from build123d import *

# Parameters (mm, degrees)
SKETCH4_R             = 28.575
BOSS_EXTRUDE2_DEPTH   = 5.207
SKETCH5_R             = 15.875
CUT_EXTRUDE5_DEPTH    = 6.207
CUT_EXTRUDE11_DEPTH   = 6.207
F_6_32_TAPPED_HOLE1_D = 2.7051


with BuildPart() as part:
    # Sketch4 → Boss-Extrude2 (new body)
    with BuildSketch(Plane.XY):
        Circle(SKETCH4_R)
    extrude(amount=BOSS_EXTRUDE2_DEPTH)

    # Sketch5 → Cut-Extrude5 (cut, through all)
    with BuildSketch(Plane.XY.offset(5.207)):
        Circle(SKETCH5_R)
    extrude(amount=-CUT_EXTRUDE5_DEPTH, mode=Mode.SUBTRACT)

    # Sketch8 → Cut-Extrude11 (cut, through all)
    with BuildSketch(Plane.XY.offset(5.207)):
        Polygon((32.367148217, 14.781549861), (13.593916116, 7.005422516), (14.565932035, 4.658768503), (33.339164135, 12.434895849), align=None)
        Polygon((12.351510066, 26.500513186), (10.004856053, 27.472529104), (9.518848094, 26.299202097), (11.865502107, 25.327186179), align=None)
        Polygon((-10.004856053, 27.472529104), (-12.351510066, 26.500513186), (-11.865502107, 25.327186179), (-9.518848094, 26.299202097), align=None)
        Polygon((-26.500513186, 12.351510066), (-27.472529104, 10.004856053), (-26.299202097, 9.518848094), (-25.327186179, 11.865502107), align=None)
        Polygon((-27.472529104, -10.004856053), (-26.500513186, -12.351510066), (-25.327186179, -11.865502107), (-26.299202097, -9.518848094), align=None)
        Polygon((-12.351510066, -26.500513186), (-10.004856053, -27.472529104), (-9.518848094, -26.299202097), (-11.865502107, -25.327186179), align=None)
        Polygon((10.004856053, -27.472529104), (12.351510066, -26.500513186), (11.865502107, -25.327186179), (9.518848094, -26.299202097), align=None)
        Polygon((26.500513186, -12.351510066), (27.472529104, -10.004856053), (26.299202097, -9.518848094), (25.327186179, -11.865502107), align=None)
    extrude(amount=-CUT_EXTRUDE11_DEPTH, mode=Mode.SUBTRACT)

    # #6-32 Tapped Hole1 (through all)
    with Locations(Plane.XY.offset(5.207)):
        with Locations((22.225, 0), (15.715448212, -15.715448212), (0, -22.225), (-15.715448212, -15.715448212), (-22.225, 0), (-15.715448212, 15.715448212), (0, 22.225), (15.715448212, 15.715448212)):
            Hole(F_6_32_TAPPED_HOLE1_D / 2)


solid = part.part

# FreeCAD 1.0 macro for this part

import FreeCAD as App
import Part
import Sketcher
from FreeCAD import Vector
Q = App.Units.Quantity

doc = App.newDocument("Part")
body = doc.addObject("PartDesign::Body", "Body")

sketch1 = body.newObject("Sketcher::SketchObject", "Sketch")
sketch1.AttachmentSupport = (doc.getObject("XY_Plane"), [""])
sketch1.MapMode = "FlatFace"
sketch1.addGeometry(Part.Circle(Vector(0, 0, 0), Vector(0, 0, 1), 28.575), False)
sketch1.addConstraint(Sketcher.Constraint("Coincident", 0, 3, -1, 1))
sketch1.addConstraint(Sketcher.Constraint("Diameter", 0, Q("2.25 in")))
pad1 = body.newObject("PartDesign::Pad", "Pad")
pad1.Profile = sketch1
pad1.Length = Q("0.205 in")

sketch2 = body.newObject("Sketcher::SketchObject", "Sketch001")
sketch2.AttachmentSupport = (doc.getObject("XY_Plane"), [""])
sketch2.MapMode = "FlatFace"
sketch2.AttachmentOffset = App.Placement(Vector(0, 0, 0.205 * 25.4), App.Rotation())
sketch2.addGeometry(Part.Circle(Vector(0, 0, 0), Vector(0, 0, 1), 15.875), False)
sketch2.addConstraint(Sketcher.Constraint("Coincident", 0, 3, -1, 1))
sketch2.addConstraint(Sketcher.Constraint("Diameter", 0, Q("1.25 in")))
pocket1 = body.newObject("PartDesign::Pocket", "Pocket")
pocket1.Profile = sketch2
pocket1.Type = "ThroughAll"

sketch3 = body.newObject("Sketcher::SketchObject", "Sketch002")
sketch3.AttachmentSupport = (doc.getObject("XY_Plane"), [""])
sketch3.MapMode = "FlatFace"
sketch3.AttachmentOffset = App.Placement(Vector(0, 0, 0.205 * 25.4), App.Rotation())
sketch3.addGeometry(Part.LineSegment(Vector(32.367148, 14.78155, 0), Vector(13.593916, 7.005423, 0)), False)
sketch3.addGeometry(Part.LineSegment(Vector(13.593916, 7.005423, 0), Vector(14.565932, 4.658769, 0)), False)
sketch3.addGeometry(Part.LineSegment(Vector(14.565932, 4.658769, 0), Vector(33.339164, 12.434896, 0)), False)
sketch3.addGeometry(Part.LineSegment(Vector(33.339164, 12.434896, 0), Vector(32.367148, 14.78155, 0)), False)
sketch3.addGeometry(Part.LineSegment(Vector(12.35151, 26.500513, 0), Vector(10.004856, 27.472529, 0)), False)
sketch3.addGeometry(Part.LineSegment(Vector(10.004856, 27.472529, 0), Vector(9.518848, 26.299202, 0)), False)
sketch3.addGeometry(Part.LineSegment(Vector(9.518848, 26.299202, 0), Vector(11.865502, 25.327186, 0)), False)
sketch3.addGeometry(Part.LineSegment(Vector(11.865502, 25.327186, 0), Vector(12.35151, 26.500513, 0)), False)
sketch3.addGeometry(Part.LineSegment(Vector(-10.004856, 27.472529, 0), Vector(-12.35151, 26.500513, 0)), False)
sketch3.addGeometry(Part.LineSegment(Vector(-12.35151, 26.500513, 0), Vector(-11.865502, 25.327186, 0)), False)
sketch3.addGeometry(Part.LineSegment(Vector(-11.865502, 25.327186, 0), Vector(-9.518848, 26.299202, 0)), False)
sketch3.addGeometry(Part.LineSegment(Vector(-9.518848, 26.299202, 0), Vector(-10.004856, 27.472529, 0)), False)
sketch3.addGeometry(Part.LineSegment(Vector(-26.500513, 12.35151, 0), Vector(-27.472529, 10.004856, 0)), False)
sketch3.addGeometry(Part.LineSegment(Vector(-27.472529, 10.004856, 0), Vector(-26.299202, 9.518848, 0)), False)
sketch3.addGeometry(Part.LineSegment(Vector(-26.299202, 9.518848, 0), Vector(-25.327186, 11.865502, 0)), False)
sketch3.addGeometry(Part.LineSegment(Vector(-25.327186, 11.865502, 0), Vector(-26.500513, 12.35151, 0)), False)
sketch3.addGeometry(Part.LineSegment(Vector(-27.472529, -10.004856, 0), Vector(-26.500513, -12.35151, 0)), False)
sketch3.addGeometry(Part.LineSegment(Vector(-26.500513, -12.35151, 0), Vector(-25.327186, -11.865502, 0)), False)
sketch3.addGeometry(Part.LineSegment(Vector(-25.327186, -11.865502, 0), Vector(-26.299202, -9.518848, 0)), False)
sketch3.addGeometry(Part.LineSegment(Vector(-26.299202, -9.518848, 0), Vector(-27.472529, -10.004856, 0)), False)
sketch3.addGeometry(Part.LineSegment(Vector(-12.35151, -26.500513, 0), Vector(-10.004856, -27.472529, 0)), False)
sketch3.addGeometry(Part.LineSegment(Vector(-10.004856, -27.472529, 0), Vector(-9.518848, -26.299202, 0)), False)
sketch3.addGeometry(Part.LineSegment(Vector(-9.518848, -26.299202, 0), Vector(-11.865502, -25.327186, 0)), False)
sketch3.addGeometry(Part.LineSegment(Vector(-11.865502, -25.327186, 0), Vector(-12.35151, -26.500513, 0)), False)
sketch3.addGeometry(Part.LineSegment(Vector(10.004856, -27.472529, 0), Vector(12.35151, -26.500513, 0)), False)
sketch3.addGeometry(Part.LineSegment(Vector(12.35151, -26.500513, 0), Vector(11.865502, -25.327186, 0)), False)
sketch3.addGeometry(Part.LineSegment(Vector(11.865502, -25.327186, 0), Vector(9.518848, -26.299202, 0)), False)
sketch3.addGeometry(Part.LineSegment(Vector(9.518848, -26.299202, 0), Vector(10.004856, -27.472529, 0)), False)
sketch3.addGeometry(Part.LineSegment(Vector(26.500513, -12.35151, 0), Vector(27.472529, -10.004856, 0)), False)
sketch3.addGeometry(Part.LineSegment(Vector(27.472529, -10.004856, 0), Vector(26.299202, -9.518848, 0)), False)
sketch3.addGeometry(Part.LineSegment(Vector(26.299202, -9.518848, 0), Vector(25.327186, -11.865502, 0)), False)
sketch3.addGeometry(Part.LineSegment(Vector(25.327186, -11.865502, 0), Vector(26.500513, -12.35151, 0)), False)
sketch3.addConstraint(Sketcher.Constraint("Coincident", 0, 2, 1, 1))
sketch3.addConstraint(Sketcher.Constraint("Coincident", 1, 2, 2, 1))
sketch3.addConstraint(Sketcher.Constraint("Coincident", 2, 2, 3, 1))
sketch3.addConstraint(Sketcher.Constraint("Coincident", 3, 2, 0, 1))
sketch3.addConstraint(Sketcher.Constraint("Coincident", 4, 2, 5, 1))
sketch3.addConstraint(Sketcher.Constraint("Coincident", 5, 2, 6, 1))
sketch3.addConstraint(Sketcher.Constraint("Coincident", 6, 2, 7, 1))
sketch3.addConstraint(Sketcher.Constraint("Coincident", 7, 2, 4, 1))
sketch3.addConstraint(Sketcher.Constraint("Coincident", 8, 2, 9, 1))
sketch3.addConstraint(Sketcher.Constraint("Coincident", 9, 2, 10, 1))
sketch3.addConstraint(Sketcher.Constraint("Coincident", 10, 2, 11, 1))
sketch3.addConstraint(Sketcher.Constraint("Coincident", 11, 2, 8, 1))
sketch3.addConstraint(Sketcher.Constraint("Coincident", 12, 2, 13, 1))
sketch3.addConstraint(Sketcher.Constraint("Coincident", 13, 2, 14, 1))
sketch3.addConstraint(Sketcher.Constraint("Coincident", 14, 2, 15, 1))
sketch3.addConstraint(Sketcher.Constraint("Coincident", 15, 2, 12, 1))
sketch3.addConstraint(Sketcher.Constraint("Coincident", 16, 2, 17, 1))
sketch3.addConstraint(Sketcher.Constraint("Coincident", 17, 2, 18, 1))
sketch3.addConstraint(Sketcher.Constraint("Coincident", 18, 2, 19, 1))
sketch3.addConstraint(Sketcher.Constraint("Coincident", 19, 2, 16, 1))
sketch3.addConstraint(Sketcher.Constraint("Coincident", 20, 2, 21, 1))
sketch3.addConstraint(Sketcher.Constraint("Coincident", 21, 2, 22, 1))
sketch3.addConstraint(Sketcher.Constraint("Coincident", 22, 2, 23, 1))
sketch3.addConstraint(Sketcher.Constraint("Coincident", 23, 2, 20, 1))
sketch3.addConstraint(Sketcher.Constraint("Coincident", 24, 2, 25, 1))
sketch3.addConstraint(Sketcher.Constraint("Coincident", 25, 2, 26, 1))
sketch3.addConstraint(Sketcher.Constraint("Coincident", 26, 2, 27, 1))
sketch3.addConstraint(Sketcher.Constraint("Coincident", 27, 2, 24, 1))
sketch3.addConstraint(Sketcher.Constraint("Coincident", 28, 2, 29, 1))
sketch3.addConstraint(Sketcher.Constraint("Coincident", 29, 2, 30, 1))
sketch3.addConstraint(Sketcher.Constraint("Coincident", 30, 2, 31, 1))
sketch3.addConstraint(Sketcher.Constraint("Coincident", 31, 2, 28, 1))
sketch3.addConstraint(Sketcher.Constraint("Symmetric", 4, 2, 20, 2, -1, 1))
sketch3.addConstraint(Sketcher.Constraint("Symmetric", 5, 2, 21, 2, -1, 1))
sketch3.addConstraint(Sketcher.Constraint("Symmetric", 6, 2, 22, 2, -1, 1))
sketch3.addConstraint(Sketcher.Constraint("Symmetric", 7, 2, 23, 2, -1, 1))
sketch3.addConstraint(Sketcher.Constraint("Symmetric", 8, 2, 24, 2, -1, 1))
sketch3.addConstraint(Sketcher.Constraint("Symmetric", 9, 2, 25, 2, -1, 1))
sketch3.addConstraint(Sketcher.Constraint("Symmetric", 10, 2, 26, 2, -1, 1))
sketch3.addConstraint(Sketcher.Constraint("Symmetric", 11, 2, 27, 2, -1, 1))
sketch3.addConstraint(Sketcher.Constraint("Symmetric", 12, 2, 28, 2, -1, 1))
sketch3.addConstraint(Sketcher.Constraint("Symmetric", 13, 2, 29, 2, -1, 1))
sketch3.addConstraint(Sketcher.Constraint("Symmetric", 14, 2, 30, 2, -1, 1))
sketch3.addConstraint(Sketcher.Constraint("Symmetric", 15, 2, 31, 2, -1, 1))
sketch3.addConstraint(Sketcher.Constraint("Symmetric", 7, 2, 8, 2, -2))
sketch3.addConstraint(Sketcher.Constraint("Symmetric", 6, 2, 9, 2, -2))
sketch3.addConstraint(Sketcher.Constraint("Symmetric", 5, 2, 10, 2, -2))
sketch3.addConstraint(Sketcher.Constraint("Symmetric", 4, 2, 11, 2, -2))
sketch3.addConstraint(Sketcher.Constraint("Symmetric", 19, 2, 28, 2, -2))
sketch3.addConstraint(Sketcher.Constraint("Symmetric", 18, 2, 29, 2, -2))
sketch3.addConstraint(Sketcher.Constraint("Symmetric", 17, 2, 30, 2, -2))
sketch3.addConstraint(Sketcher.Constraint("Symmetric", 16, 2, 31, 2, -2))
sketch3.addConstraint(Sketcher.Constraint("Perpendicular", 0, 1))
sketch3.addConstraint(Sketcher.Constraint("Perpendicular", 1, 2))
sketch3.addConstraint(Sketcher.Constraint("Perpendicular", 2, 3))
sketch3.addConstraint(Sketcher.Constraint("Perpendicular", 4, 5))
sketch3.addConstraint(Sketcher.Constraint("Perpendicular", 5, 6))
sketch3.addConstraint(Sketcher.Constraint("Perpendicular", 6, 7))
sketch3.addConstraint(Sketcher.Constraint("Perpendicular", 3, 8))
sketch3.addConstraint(Sketcher.Constraint("Parallel", 7, 12))
sketch3.addConstraint(Sketcher.Constraint("Perpendicular", 12, 13))
sketch3.addConstraint(Sketcher.Constraint("Perpendicular", 13, 14))
sketch3.addConstraint(Sketcher.Constraint("Perpendicular", 14, 15))
sketch3.addConstraint(Sketcher.Constraint("Equal", 3, 4))
sketch3.addConstraint(Sketcher.Constraint("Equal", 10, 12))
sketch3.addConstraint(Sketcher.Constraint("Equal", 11, 13))
sketch3.addConstraint(Sketcher.Constraint("Distance", 0, Q("0.8 in")))
sketch3.addConstraint(Sketcher.Constraint("Distance", 1, Q("0.1 in")))
sketch3.addConstraint(Sketcher.Constraint("Angle", 0, Q("-157.5 deg")))
sketch3.addConstraint(Sketcher.Constraint("Distance", 5, Q("0.05 in")))
sketch3.addConstraint(Sketcher.Constraint("DistanceX", 5, 2, 3, 2, Q("22.8483 mm")))
sketch3.addConstraint(Sketcher.Constraint("DistanceX", 13, 2, 9, 2, Q("14.4337 mm")))
sketch3.addConstraint(Sketcher.Constraint("DistanceY", 14, 2, 10, 2, Q("14.4337 mm")))
sketch3.addConstraint(Sketcher.Constraint("DistanceY", -1, 1, 1, 2, Q("4.658769 mm")))
sketch3.addConstraint(Sketcher.Constraint("DistanceX", -1, 1, 3, 2, Q("32.367148 mm")))
sketch3.addConstraint(Sketcher.Constraint("DistanceY", -1, 1, 4, 2, Q("27.472529 mm")))
pocket2 = body.newObject("PartDesign::Pocket", "Pocket001")
pocket2.Profile = sketch3
pocket2.Type = "ThroughAll"

sketch4 = body.newObject("Sketcher::SketchObject", "Sketch003")
sketch4.AttachmentSupport = (doc.getObject("XY_Plane"), [""])
sketch4.MapMode = "FlatFace"
sketch4.AttachmentOffset = App.Placement(Vector(0, 0, 0.205 * 25.4), App.Rotation())
sketch4.addGeometry(Part.Circle(Vector(22.225, 0, 0), Vector(0, 0, 1), 1.35255), False)
sketch4.addGeometry(Part.Circle(Vector(15.715448, -15.715448, 0), Vector(0, 0, 1), 1.35255), False)
sketch4.addGeometry(Part.Circle(Vector(0, -22.225, 0), Vector(0, 0, 1), 1.35255), False)
sketch4.addGeometry(Part.Circle(Vector(-15.715448, -15.715448, 0), Vector(0, 0, 1), 1.35255), False)
sketch4.addGeometry(Part.Circle(Vector(-22.225, 0, 0), Vector(0, 0, 1), 1.35255), False)
sketch4.addGeometry(Part.Circle(Vector(-15.715448, 15.715448, 0), Vector(0, 0, 1), 1.35255), False)
sketch4.addGeometry(Part.Circle(Vector(0, 22.225, 0), Vector(0, 0, 1), 1.35255), False)
sketch4.addGeometry(Part.Circle(Vector(15.715448, 15.715448, 0), Vector(0, 0, 1), 1.35255), False)
sketch4.addConstraint(Sketcher.Constraint("Equal", 0, 1))
sketch4.addConstraint(Sketcher.Constraint("Equal", 1, 2))
sketch4.addConstraint(Sketcher.Constraint("Equal", 2, 3))
sketch4.addConstraint(Sketcher.Constraint("Equal", 3, 4))
sketch4.addConstraint(Sketcher.Constraint("Equal", 4, 5))
sketch4.addConstraint(Sketcher.Constraint("Equal", 5, 6))
sketch4.addConstraint(Sketcher.Constraint("Equal", 6, 7))
sketch4.addConstraint(Sketcher.Constraint("Symmetric", 0, 3, 4, 3, -1, 1))
sketch4.addConstraint(Sketcher.Constraint("Symmetric", 1, 3, 5, 3, -1, 1))
sketch4.addConstraint(Sketcher.Constraint("Symmetric", 2, 3, 6, 3, -1, 1))
sketch4.addConstraint(Sketcher.Constraint("Symmetric", 3, 3, 7, 3, -1, 1))
sketch4.addConstraint(Sketcher.Constraint("Symmetric", 1, 3, 3, 3, -2))
sketch4.addConstraint(Sketcher.Constraint("PointOnObject", 0, 3, -1))
sketch4.addConstraint(Sketcher.Constraint("PointOnObject", 2, 3, -2))
sketch4.addConstraint(Sketcher.Constraint("Diameter", 0, Q("0.1065 in")))
sketch4.addConstraint(Sketcher.Constraint("DistanceX", 4, 3, 0, 3, Q("1.75 in")))
sketch4.addConstraint(Sketcher.Constraint("DistanceY", 2, 3, -1, 1, Q("0.875 in")))
sketch4.addConstraint(Sketcher.Constraint("DistanceX", -1, 1, 1, 3, Q("15.715448 mm")))
sketch4.addConstraint(Sketcher.Constraint("DistanceY", 1, 3, -1, 1, Q("15.715448 mm")))
doc.recompute()
hole = body.newObject("PartDesign::Hole", "Hole")
hole.Profile = sketch4
hole.ThreadType = "None"
hole.Diameter = Q("0.1065 in")
hole.DepthType = "ThroughAll"

doc.recompute()
